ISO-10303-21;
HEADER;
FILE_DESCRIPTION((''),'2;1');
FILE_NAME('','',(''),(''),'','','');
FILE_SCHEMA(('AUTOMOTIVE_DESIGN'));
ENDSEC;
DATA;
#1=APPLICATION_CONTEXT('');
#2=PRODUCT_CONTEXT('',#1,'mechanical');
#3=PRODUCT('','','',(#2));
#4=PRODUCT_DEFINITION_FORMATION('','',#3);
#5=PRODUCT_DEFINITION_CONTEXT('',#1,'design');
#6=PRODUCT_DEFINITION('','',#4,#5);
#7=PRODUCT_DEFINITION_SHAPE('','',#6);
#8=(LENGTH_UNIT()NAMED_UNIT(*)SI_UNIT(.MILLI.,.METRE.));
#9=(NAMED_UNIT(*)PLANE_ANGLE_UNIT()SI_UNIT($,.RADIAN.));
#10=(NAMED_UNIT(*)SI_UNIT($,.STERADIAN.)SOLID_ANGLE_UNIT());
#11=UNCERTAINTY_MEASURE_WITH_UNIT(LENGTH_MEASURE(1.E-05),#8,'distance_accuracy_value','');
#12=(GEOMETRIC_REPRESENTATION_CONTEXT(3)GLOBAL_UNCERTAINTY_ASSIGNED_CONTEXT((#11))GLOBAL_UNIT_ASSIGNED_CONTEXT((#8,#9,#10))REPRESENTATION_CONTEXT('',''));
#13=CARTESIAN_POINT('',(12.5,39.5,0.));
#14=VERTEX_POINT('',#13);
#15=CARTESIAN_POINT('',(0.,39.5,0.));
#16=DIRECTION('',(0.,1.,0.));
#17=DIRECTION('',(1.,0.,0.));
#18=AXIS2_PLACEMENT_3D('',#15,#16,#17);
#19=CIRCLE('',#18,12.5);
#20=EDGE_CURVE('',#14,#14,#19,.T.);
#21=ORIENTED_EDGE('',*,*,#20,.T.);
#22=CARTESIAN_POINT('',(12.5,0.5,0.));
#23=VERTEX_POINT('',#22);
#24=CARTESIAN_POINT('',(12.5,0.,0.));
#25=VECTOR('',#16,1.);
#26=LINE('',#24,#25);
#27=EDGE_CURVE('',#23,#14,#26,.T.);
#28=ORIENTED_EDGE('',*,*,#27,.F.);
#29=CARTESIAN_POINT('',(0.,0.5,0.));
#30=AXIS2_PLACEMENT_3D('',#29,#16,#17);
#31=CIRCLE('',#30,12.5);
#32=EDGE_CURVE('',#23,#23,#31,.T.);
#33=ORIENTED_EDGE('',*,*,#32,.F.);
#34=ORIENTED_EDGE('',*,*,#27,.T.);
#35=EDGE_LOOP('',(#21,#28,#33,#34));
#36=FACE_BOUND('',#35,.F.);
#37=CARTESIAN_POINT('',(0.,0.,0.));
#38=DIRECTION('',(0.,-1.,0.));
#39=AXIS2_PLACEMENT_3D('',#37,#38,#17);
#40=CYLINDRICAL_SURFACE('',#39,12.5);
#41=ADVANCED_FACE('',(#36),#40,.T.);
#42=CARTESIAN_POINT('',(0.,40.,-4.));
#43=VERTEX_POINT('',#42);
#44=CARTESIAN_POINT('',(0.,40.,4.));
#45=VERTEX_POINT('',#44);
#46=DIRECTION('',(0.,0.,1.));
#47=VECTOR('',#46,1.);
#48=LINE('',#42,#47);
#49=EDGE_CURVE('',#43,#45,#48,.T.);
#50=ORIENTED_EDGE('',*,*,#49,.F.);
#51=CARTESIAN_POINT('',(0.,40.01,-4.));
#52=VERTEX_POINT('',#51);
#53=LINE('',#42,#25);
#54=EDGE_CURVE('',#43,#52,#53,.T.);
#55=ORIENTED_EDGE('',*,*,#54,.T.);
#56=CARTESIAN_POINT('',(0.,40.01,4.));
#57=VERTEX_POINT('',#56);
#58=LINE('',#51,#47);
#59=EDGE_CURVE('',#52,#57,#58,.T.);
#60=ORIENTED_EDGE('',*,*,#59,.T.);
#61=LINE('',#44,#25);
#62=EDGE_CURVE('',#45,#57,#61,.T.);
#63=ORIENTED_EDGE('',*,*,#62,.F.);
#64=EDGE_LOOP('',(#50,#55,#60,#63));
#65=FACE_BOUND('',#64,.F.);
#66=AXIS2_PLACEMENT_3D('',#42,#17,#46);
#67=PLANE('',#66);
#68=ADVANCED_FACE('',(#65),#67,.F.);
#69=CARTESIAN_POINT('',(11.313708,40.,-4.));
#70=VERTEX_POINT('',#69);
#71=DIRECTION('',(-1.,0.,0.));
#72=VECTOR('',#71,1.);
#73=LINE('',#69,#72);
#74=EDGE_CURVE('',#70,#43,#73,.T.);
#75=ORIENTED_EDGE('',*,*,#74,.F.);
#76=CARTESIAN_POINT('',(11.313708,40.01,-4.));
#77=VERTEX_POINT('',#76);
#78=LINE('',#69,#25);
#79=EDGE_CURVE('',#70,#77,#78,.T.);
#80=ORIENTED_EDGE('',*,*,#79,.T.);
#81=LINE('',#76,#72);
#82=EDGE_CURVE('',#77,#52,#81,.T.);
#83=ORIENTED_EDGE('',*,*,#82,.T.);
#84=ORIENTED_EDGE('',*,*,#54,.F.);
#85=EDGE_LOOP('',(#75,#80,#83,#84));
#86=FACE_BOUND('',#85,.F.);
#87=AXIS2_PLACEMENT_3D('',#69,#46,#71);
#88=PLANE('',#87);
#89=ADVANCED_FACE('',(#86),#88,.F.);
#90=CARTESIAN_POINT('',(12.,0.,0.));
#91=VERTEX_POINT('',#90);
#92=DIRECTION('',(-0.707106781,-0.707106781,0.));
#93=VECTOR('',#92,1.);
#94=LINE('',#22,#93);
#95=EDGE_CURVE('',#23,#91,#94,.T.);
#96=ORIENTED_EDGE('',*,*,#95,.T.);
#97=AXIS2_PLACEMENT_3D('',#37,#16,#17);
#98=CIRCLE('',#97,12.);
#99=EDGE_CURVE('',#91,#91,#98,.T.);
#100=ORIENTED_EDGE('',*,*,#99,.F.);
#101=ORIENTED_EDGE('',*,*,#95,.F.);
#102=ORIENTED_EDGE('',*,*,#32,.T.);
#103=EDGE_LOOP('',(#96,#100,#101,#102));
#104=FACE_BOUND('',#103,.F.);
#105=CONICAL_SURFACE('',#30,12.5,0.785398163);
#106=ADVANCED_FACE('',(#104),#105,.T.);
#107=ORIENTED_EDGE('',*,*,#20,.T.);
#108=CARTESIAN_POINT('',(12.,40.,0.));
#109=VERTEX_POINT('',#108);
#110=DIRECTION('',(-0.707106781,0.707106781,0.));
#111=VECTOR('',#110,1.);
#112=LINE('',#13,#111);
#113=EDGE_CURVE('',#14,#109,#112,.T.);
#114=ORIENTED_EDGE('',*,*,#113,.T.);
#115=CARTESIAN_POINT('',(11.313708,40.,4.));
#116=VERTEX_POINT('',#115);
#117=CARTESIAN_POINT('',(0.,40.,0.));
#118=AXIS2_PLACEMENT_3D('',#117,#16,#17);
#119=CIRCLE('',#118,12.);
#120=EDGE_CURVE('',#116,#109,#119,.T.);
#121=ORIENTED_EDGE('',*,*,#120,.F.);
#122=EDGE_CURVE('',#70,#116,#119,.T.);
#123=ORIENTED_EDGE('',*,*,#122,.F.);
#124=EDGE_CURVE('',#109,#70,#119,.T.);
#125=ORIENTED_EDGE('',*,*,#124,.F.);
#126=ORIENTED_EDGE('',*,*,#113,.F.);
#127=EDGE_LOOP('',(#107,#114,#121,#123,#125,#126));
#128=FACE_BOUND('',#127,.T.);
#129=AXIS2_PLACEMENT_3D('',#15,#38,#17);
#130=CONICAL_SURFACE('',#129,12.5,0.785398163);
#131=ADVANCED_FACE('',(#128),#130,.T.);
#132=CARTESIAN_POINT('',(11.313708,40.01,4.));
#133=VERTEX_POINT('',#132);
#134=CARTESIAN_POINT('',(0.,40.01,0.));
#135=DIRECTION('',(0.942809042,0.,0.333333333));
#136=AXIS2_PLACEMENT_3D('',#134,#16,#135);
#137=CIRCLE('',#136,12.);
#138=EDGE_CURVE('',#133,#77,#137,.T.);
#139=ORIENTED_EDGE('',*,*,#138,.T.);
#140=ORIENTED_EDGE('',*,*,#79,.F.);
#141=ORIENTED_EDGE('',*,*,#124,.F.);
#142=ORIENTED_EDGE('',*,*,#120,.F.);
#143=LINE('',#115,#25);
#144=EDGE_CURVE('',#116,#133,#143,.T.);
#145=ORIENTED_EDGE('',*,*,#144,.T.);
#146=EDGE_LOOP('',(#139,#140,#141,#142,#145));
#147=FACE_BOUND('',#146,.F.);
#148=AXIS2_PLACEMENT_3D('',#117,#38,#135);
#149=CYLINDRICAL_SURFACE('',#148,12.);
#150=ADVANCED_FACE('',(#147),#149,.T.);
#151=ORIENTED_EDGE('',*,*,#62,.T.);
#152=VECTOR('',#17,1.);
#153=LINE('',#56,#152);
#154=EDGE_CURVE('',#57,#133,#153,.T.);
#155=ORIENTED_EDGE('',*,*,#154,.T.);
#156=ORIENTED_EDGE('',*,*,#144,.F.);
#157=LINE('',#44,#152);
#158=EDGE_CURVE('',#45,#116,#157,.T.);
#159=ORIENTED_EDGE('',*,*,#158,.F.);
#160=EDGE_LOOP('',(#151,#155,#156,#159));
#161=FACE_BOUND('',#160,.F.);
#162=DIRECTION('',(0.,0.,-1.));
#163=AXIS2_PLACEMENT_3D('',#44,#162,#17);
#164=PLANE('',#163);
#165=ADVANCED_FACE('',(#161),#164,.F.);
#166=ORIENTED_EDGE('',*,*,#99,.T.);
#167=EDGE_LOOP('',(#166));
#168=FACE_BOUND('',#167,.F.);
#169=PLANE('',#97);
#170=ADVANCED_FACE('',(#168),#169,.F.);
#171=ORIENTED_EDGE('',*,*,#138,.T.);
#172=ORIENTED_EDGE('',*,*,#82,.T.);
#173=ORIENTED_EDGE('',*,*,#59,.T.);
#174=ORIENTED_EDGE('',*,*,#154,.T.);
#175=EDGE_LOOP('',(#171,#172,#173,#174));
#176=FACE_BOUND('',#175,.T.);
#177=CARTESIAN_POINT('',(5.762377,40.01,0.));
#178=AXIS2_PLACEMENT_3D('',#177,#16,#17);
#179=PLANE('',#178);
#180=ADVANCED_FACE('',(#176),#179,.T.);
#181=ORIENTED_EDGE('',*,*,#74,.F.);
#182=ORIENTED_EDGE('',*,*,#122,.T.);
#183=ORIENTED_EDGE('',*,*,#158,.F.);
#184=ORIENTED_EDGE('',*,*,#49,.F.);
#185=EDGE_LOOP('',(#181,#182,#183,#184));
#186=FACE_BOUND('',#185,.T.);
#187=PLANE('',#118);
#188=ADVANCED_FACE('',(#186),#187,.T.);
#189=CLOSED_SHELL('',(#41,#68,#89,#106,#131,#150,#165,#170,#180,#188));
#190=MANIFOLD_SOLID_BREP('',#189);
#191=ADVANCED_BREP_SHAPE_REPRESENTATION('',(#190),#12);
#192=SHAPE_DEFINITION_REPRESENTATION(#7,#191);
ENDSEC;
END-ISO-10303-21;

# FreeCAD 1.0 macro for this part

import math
import FreeCAD as App
import Part
import Sketcher


def edges_at(feature, points):
    """Names of the edges that pass closest to the given points."""
    edges = feature.Shape.Edges
    near = lambda p: min(range(len(edges)), key=lambda i: edges[i].distToShape(Part.Vertex(*p))[0])
    return sorted({f"Edge{near(p) + 1}" for p in points})

doc = App.newDocument("Part")
body = doc.addObject("PartDesign::Body", "Body")

sketch1 = doc.addObject("Sketcher::SketchObject", "Sketch")
body.addObject(sketch1)
sketch1.AttachmentSupport = (doc.XZ_Plane, [""])
sketch1.MapMode = "FlatFace"
sketch1.addGeometry(Part.Circle(App.Vector(0, 0, 0), App.Vector(0, 0, 1), 12), False)
sketch1.addConstraint([
    Sketcher.Constraint("Coincident", 0, 3, -1, 1),
    Sketcher.Constraint("Diameter", 0, 25.0),
])
pad1 = doc.addObject("PartDesign::Pad", "Pad")
body.addObject(pad1)
pad1.Profile = sketch1
pad1.Length = 40
pad1.Reversed = True
doc.recompute()

chamfer = doc.addObject("PartDesign::Chamfer", "Chamfer")
body.addObject(chamfer)
chamfer.Base = (pad1, edges_at(pad1, [(-12.5, 0, 0), (-12.5, 40, 0)]))
chamfer.Size = 0.5

sketch2 = doc.addObject("Sketcher::SketchObject", "Sketch001")
body.addObject(sketch2)
sketch2.AttachmentSupport = (doc.XZ_Plane, [""])
sketch2.MapMode = "FlatFace"
sketch2.AttachmentOffset = App.Placement(App.Vector(0, 0, -40), App.Rotation())
sketch2.addGeometry([
    Part.LineSegment(App.Vector(11, -4, 0), App.Vector(0, -4, 0)),
    Part.LineSegment(App.Vector(0, -4, 0), App.Vector(0, 4, 0)),
    Part.LineSegment(App.Vector(0, 4, 0), App.Vector(11, 4, 0)),
    Part.ArcOfCircle(Part.Circle(App.Vector(0, 0, 0), App.Vector(0, 0, 1), 12), math.radians(-19), math.radians(19)),
], False)
sketch2.addConstraint([
    Sketcher.Constraint("Coincident", 0, 2, 1, 1),
    Sketcher.Constraint("Coincident", 1, 2, 2, 1),
    Sketcher.Constraint("Coincident", 2, 2, 3, 2),
    Sketcher.Constraint("Coincident", 3, 1, 0, 1),
    Sketcher.Constraint("Horizontal", 0),
    Sketcher.Constraint("Vertical", 1),
    Sketcher.Constraint("Horizontal", 2),
    Sketcher.Constraint("Coincident", 3, 3, -1, 1),
    Sketcher.Constraint("Symmetric", 0, 2, 1, 2, -1, 1),
    Sketcher.Constraint("Radius", 3, 12.0),
    Sketcher.Constraint("DistanceY", 1, 1, 1, 2, 8.0),
])
pad2 = doc.addObject("PartDesign::Pad", "Pad001")
body.addObject(pad2)
pad2.Profile = sketch2
pad2.Length = 0.01
pad2.Reversed = True

doc.recompute()
